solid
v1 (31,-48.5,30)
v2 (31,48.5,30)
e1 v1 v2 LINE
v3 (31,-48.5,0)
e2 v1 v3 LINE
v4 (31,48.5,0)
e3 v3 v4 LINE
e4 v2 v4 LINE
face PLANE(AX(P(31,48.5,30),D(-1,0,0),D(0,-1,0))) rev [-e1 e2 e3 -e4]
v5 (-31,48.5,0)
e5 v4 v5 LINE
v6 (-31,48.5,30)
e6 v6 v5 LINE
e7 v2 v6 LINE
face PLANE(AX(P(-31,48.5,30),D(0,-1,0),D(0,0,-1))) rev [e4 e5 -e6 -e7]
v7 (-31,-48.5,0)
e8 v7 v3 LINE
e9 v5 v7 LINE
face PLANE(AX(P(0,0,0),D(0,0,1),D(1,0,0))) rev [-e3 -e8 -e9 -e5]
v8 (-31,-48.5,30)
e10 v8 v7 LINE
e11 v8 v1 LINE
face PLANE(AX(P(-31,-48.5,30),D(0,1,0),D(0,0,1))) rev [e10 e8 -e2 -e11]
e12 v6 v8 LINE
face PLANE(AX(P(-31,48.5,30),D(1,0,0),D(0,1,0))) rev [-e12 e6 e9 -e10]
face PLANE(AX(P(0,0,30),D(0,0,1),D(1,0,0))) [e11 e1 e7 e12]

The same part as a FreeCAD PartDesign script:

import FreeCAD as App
import Part
import Sketcher

V = App.Vector


def add_polygon(sketch, points):
    """Adds a closed chain of lines whose ends are joined by coincident constraints."""
    first, n = sketch.GeometryCount, len(points)
    for a, b in zip(points, points[1:] + points[:1]):
        sketch.addGeometry(Part.LineSegment(App.Vector(*a, 0), App.Vector(*b, 0)), False)
    for i in range(n):
        sketch.addConstraint(Sketcher.Constraint("Coincident", first + i, 2, first + (i + 1) % n, 1))

doc = App.newDocument("Part")
body = doc.addObject("PartDesign::Body", "Body")

sketch1 = body.newObject("Sketcher::SketchObject", "Sketch")
sketch1.AttachmentSupport = (doc.getObject("XY_Plane"), [""])
sketch1.MapMode = "FlatFace"
add_polygon(sketch1, [(-31, 48.5), (-31, -48.5), (31, -48.5), (31, 48.5)])
sketch1.addConstraint([
    Sketcher.Constraint("Vertical", 0),
    Sketcher.Constraint("Horizontal", 1),
    Sketcher.Constraint("Vertical", 2),
    Sketcher.Constraint("Horizontal", 3),
    Sketcher.Constraint("Symmetric", 0, 2, 2, 2, -1, 1),
    Sketcher.Constraint("DistanceX", 1, 1, 1, 2, 62.0),
    Sketcher.Constraint("DistanceY", 0, 2, 0, 1, 97.0),
])
pad1 = body.newObject("PartDesign::Pad", "Pad")
pad1.Profile = sketch1
pad1.Length = 30

doc.recompute()
